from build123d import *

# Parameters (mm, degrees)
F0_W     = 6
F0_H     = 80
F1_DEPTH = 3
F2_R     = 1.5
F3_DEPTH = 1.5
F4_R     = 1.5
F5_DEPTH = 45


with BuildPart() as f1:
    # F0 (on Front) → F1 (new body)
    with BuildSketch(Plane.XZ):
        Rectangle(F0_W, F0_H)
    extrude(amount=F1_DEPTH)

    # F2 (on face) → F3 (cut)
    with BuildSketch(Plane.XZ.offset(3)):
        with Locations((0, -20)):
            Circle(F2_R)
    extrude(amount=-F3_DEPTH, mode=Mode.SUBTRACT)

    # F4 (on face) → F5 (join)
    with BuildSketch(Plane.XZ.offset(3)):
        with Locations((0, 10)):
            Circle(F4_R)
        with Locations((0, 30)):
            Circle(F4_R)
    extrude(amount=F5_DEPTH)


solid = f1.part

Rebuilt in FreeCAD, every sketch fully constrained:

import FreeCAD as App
import Part
import Sketcher

doc = App.newDocument("Part")
body = doc.addObject("PartDesign::Body", "Body")

sketch1 = body.newObject("Sketcher::SketchObject", "Sketch")
sketch1.AttachmentSupport = (doc.getObject("XZ_Plane"), [""])
sketch1.MapMode = "FlatFace"
sketch1.addGeometry(Part.LineSegment(App.Vector(-3, 40, 0), App.Vector(-3, -40, 0)), False)
sketch1.addGeometry(Part.LineSegment(App.Vector(-3, -40, 0), App.Vector(3, -40, 0)), False)
sketch1.addGeometry(Part.LineSegment(App.Vector(3, -40, 0), App.Vector(3, 40, 0)), False)
sketch1.addGeometry(Part.LineSegment(App.Vector(3, 40, 0), App.Vector(-3, 40, 0)), False)
sketch1.addConstraint(Sketcher.Constraint("Coincident", 0, 2, 1, 1))
sketch1.addConstraint(Sketcher.Constraint("Coincident", 1, 2, 2, 1))
sketch1.addConstraint(Sketcher.Constraint("Coincident", 2, 2, 3, 1))
sketch1.addConstraint(Sketcher.Constraint("Coincident", 3, 2, 0, 1))
sketch1.addConstraint(Sketcher.Constraint("Vertical", 0))
sketch1.addConstraint(Sketcher.Constraint("Horizontal", 1))
sketch1.addConstraint(Sketcher.Constraint("Vertical", 2))
sketch1.addConstraint(Sketcher.Constraint("Horizontal", 3))
sketch1.addConstraint(Sketcher.Constraint("Symmetric", 0, 2, 2, 2, -1, 1))
sketch1.addConstraint(Sketcher.Constraint("DistanceX", 1, 1, 1, 2, 6.0))
sketch1.addConstraint(Sketcher.Constraint("DistanceY", 0, 2, 0, 1, 80.0))
pad1 = body.newObject("PartDesign::Pad", "Pad")
pad1.Profile = sketch1
pad1.Length = 3

sketch2 = body.newObject("Sketcher::SketchObject", "Sketch001")
sketch2.AttachmentSupport = (doc.getObject("XZ_Plane"), [""])
sketch2.MapMode = "FlatFace"
sketch2.AttachmentOffset = App.Placement(App.Vector(0, 0, 3), App.Rotation())
sketch2.addGeometry(Part.Circle(App.Vector(0, -20, 0), App.Vector(0, 0, 1), 1.5), False)
sketch2.addConstraint(Sketcher.Constraint("PointOnObject", 0, 3, -2))
sketch2.addConstraint(Sketcher.Constraint("Diameter", 0, 3.0))
sketch2.addConstraint(Sketcher.Constraint("DistanceY", 0, 3, -1, 1, 20.0))
pocket1 = body.newObject("PartDesign::Pocket", "Pocket")
pocket1.Profile = sketch2
pocket1.Length = 1.5

sketch3 = body.newObject("Sketcher::SketchObject", "Sketch002")
sketch3.AttachmentSupport = (doc.getObject("XZ_Plane"), [""])
sketch3.MapMode = "FlatFace"
sketch3.AttachmentOffset = App.Placement(App.Vector(0, 0, 3), App.Rotation())
sketch3.addGeometry(Part.Circle(App.Vector(0, 10, 0), App.Vector(0, 0, 1), 1.5), False)
sketch3.addGeometry(Part.Circle(App.Vector(0, 30, 0), App.Vector(0, 0, 1), 1.5), False)
sketch3.addConstraint(Sketcher.Constraint("Equal", 0, 1))
sketch3.addConstraint(Sketcher.Constraint("PointOnObject", 0, 3, -2))
sketch3.addConstraint(Sketcher.Constraint("PointOnObject", 1, 3, -2))
sketch3.addConstraint(Sketcher.Constraint("Diameter", 0, 3.0))
sketch3.addConstraint(Sketcher.Constraint("DistanceY", -1, 1, 0, 3, 10.0))
sketch3.addConstraint(Sketcher.Constraint("DistanceY", -1, 1, 1, 3, 30.0))
pad2 = body.newObject("PartDesign::Pad", "Pad001")
pad2.Profile = sketch3
pad2.Length = 45

doc.recompute()
